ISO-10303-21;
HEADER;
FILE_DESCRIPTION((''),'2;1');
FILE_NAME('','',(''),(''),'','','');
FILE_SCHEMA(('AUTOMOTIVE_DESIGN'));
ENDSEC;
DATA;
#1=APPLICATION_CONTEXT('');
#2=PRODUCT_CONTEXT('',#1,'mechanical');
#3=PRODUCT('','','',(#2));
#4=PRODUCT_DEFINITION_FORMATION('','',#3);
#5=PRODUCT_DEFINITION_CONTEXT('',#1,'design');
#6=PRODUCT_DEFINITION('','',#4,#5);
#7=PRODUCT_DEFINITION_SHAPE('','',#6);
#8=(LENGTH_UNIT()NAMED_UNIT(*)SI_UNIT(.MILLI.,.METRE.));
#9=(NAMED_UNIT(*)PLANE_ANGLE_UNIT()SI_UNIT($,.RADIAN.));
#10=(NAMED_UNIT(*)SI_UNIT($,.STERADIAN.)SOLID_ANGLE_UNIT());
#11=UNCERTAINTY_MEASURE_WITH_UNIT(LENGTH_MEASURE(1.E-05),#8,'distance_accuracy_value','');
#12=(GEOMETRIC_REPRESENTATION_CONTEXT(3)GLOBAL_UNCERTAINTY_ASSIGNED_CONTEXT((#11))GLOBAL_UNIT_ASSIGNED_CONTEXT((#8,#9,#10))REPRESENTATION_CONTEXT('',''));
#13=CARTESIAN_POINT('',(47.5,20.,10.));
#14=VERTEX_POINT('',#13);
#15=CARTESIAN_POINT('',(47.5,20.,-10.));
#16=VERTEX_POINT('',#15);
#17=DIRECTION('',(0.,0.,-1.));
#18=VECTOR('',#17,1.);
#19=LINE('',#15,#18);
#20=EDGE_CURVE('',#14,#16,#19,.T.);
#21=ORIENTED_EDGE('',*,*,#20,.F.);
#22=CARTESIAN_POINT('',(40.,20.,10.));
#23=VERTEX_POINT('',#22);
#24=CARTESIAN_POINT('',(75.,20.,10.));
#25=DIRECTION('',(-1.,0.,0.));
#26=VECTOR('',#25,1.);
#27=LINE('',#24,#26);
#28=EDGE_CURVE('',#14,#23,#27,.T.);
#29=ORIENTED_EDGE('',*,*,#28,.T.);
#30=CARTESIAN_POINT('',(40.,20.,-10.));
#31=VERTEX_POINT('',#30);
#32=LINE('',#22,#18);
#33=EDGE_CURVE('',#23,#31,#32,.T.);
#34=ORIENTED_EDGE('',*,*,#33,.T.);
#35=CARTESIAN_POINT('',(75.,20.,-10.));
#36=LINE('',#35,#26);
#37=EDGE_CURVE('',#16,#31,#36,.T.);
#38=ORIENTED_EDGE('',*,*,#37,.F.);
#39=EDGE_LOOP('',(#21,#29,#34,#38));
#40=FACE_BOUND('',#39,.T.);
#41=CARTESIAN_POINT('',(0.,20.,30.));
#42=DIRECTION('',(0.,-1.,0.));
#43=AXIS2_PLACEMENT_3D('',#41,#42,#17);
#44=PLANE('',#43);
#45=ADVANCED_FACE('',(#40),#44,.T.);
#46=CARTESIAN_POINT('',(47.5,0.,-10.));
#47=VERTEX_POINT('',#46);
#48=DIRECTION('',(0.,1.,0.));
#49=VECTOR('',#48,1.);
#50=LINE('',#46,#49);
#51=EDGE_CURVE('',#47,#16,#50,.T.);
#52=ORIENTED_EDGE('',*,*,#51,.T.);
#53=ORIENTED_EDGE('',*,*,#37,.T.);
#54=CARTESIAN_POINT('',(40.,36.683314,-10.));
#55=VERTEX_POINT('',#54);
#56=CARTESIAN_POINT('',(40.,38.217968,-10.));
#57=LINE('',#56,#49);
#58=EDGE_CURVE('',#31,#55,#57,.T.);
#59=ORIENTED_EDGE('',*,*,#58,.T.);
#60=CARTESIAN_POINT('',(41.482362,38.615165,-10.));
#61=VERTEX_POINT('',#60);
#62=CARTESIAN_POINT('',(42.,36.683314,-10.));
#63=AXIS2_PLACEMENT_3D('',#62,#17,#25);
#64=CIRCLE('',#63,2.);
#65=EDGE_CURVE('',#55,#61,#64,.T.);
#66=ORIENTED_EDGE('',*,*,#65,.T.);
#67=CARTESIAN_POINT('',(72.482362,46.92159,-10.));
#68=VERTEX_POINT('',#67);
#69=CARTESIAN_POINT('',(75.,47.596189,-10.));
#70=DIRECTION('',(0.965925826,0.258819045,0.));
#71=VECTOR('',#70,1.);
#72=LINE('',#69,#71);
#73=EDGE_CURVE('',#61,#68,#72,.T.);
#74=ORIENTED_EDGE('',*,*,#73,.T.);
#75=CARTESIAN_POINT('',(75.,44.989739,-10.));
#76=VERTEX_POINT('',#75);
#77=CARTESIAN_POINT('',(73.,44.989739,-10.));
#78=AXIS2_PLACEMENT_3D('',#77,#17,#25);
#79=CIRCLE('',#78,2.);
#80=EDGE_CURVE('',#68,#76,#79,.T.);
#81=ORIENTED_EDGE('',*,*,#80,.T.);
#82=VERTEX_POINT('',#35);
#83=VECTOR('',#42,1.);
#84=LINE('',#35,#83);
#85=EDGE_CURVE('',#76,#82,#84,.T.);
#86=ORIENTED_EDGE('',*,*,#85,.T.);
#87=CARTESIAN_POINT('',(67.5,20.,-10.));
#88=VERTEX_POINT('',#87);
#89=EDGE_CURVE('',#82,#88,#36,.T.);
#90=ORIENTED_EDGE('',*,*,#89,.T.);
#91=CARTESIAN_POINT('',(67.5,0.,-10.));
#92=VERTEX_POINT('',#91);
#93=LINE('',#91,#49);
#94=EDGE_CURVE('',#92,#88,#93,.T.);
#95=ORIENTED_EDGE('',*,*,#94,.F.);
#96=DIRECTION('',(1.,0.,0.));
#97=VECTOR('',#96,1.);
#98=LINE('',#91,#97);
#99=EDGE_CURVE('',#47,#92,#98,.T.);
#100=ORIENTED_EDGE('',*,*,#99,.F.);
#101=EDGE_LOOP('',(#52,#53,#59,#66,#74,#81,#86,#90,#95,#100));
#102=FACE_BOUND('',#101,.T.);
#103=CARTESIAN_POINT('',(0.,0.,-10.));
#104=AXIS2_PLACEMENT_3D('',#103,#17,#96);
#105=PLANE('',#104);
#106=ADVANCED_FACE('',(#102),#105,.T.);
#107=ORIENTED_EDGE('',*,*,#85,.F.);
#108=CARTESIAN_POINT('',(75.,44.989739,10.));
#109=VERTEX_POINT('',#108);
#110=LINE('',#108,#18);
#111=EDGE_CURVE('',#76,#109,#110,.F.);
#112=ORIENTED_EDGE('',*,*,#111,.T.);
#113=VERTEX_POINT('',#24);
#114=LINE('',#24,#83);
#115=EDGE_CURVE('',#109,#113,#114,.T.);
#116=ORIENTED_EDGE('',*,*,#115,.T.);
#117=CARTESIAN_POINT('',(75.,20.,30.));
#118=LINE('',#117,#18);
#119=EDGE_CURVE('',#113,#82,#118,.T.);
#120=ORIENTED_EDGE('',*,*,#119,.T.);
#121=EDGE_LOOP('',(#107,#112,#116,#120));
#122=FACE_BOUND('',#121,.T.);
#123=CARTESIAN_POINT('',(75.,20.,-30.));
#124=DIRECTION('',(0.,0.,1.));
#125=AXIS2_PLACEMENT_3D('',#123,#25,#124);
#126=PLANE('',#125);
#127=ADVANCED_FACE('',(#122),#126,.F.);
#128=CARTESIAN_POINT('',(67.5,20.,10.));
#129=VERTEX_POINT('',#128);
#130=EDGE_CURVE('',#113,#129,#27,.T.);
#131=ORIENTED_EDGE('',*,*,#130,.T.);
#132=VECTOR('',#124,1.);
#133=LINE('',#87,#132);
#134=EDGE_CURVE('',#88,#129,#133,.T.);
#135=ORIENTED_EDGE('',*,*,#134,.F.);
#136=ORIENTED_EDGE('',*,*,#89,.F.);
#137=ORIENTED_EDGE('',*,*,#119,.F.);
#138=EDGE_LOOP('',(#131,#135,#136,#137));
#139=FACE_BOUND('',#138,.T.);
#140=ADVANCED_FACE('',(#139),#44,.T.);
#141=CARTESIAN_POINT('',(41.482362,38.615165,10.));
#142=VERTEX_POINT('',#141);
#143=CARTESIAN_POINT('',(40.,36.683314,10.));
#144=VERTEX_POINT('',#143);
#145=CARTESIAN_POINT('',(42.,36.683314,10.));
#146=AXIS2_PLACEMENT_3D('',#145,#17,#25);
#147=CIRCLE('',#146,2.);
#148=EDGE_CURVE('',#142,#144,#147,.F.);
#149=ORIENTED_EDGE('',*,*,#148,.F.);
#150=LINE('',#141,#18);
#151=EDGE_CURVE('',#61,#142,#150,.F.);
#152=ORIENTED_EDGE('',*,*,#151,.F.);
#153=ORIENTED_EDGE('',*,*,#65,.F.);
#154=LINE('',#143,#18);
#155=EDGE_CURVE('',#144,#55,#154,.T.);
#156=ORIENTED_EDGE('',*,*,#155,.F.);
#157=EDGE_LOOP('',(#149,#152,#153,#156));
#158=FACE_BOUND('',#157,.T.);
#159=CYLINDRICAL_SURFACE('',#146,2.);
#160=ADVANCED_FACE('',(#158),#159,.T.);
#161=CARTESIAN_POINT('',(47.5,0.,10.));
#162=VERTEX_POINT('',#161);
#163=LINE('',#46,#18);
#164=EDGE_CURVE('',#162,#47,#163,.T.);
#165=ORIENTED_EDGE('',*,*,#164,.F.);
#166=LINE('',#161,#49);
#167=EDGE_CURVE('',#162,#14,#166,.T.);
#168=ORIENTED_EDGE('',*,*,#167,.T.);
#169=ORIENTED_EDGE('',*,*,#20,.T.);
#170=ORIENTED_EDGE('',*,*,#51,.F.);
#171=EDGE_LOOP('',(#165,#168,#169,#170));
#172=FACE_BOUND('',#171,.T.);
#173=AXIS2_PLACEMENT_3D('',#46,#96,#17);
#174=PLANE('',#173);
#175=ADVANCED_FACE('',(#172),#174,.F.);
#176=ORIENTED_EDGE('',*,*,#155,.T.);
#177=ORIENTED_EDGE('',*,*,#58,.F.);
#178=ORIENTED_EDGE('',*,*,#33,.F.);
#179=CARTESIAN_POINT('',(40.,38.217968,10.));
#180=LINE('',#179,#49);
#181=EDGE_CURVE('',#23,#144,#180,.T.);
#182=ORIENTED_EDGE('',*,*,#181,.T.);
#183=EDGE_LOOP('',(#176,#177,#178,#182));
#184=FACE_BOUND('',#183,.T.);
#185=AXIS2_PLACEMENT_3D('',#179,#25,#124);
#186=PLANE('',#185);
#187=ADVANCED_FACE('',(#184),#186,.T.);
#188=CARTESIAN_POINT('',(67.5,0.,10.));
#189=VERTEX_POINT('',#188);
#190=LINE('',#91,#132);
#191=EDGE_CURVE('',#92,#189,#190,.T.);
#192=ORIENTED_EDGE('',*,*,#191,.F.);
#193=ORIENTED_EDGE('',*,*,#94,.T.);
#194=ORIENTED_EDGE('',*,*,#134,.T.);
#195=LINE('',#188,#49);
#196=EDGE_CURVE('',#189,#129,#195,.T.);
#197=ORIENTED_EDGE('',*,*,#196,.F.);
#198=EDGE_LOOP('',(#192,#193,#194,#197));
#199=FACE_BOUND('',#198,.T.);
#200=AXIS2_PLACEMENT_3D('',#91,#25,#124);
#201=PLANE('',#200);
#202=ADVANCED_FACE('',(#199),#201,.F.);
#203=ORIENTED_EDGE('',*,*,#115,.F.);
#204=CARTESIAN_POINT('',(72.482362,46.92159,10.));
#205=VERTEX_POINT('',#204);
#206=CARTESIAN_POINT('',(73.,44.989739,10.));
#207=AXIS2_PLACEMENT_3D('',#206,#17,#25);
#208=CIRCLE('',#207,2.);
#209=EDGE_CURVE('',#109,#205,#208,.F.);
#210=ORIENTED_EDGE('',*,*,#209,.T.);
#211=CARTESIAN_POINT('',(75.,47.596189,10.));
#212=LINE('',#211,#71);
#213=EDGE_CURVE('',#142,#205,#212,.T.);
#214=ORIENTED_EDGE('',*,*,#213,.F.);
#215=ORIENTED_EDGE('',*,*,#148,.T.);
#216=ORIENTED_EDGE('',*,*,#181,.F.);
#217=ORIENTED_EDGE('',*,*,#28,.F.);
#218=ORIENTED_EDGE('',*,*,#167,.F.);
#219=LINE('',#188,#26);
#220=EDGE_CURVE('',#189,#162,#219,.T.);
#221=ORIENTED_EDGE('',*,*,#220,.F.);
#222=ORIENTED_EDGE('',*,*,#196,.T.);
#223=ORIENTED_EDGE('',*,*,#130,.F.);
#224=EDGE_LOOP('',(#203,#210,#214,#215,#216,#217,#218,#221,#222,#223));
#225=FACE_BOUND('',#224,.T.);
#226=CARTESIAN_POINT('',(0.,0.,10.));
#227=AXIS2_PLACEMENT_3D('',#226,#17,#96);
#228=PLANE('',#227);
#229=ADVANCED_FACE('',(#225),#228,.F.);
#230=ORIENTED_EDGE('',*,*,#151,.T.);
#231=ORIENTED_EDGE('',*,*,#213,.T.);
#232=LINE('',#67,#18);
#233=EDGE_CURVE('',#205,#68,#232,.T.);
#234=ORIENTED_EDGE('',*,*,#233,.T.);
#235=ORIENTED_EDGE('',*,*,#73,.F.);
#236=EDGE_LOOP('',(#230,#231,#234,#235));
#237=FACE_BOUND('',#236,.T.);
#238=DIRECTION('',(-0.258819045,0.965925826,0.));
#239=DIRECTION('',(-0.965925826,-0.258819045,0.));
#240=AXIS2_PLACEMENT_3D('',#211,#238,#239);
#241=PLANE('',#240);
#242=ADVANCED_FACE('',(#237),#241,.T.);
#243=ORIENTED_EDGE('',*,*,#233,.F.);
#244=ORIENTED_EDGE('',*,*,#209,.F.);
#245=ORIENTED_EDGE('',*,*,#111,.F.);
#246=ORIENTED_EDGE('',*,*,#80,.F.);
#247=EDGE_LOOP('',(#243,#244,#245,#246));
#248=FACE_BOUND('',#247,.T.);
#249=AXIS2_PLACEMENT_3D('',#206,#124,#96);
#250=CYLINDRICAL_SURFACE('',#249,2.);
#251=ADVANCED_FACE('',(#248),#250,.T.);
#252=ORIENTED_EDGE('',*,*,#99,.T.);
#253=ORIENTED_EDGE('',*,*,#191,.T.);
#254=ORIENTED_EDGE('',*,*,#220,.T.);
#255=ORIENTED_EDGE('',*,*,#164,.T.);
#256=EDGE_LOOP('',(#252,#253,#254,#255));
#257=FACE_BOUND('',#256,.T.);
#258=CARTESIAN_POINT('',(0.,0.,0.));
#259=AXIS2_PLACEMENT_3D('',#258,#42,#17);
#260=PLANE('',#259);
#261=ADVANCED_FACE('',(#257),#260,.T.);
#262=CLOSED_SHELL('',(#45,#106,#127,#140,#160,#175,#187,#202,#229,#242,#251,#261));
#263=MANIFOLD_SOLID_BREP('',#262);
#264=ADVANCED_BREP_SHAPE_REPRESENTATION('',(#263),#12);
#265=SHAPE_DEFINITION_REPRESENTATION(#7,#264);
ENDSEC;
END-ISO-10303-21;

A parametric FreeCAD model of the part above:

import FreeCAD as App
import Part
import Sketcher
from FreeCAD import Vector
Q = App.Units.Quantity


def edges_at(feature, points):
    """Names of the edges that pass closest to the given points."""
    edges = feature.Shape.Edges
    near = lambda p: min(range(len(edges)), key=lambda i: edges[i].distToShape(Part.Vertex(*p))[0])
    return sorted({f"Edge{near(p) + 1}" for p in points})


def add_polygon(sketch, points):
    """Adds a closed chain of lines whose ends are joined by coincident constraints."""
    first, n = sketch.GeometryCount, len(points)
    for a, b in zip(points, points[1:] + points[:1]):
        sketch.addGeometry(Part.LineSegment(App.Vector(*a, 0), App.Vector(*b, 0)), False)
    for i in range(n):
        sketch.addConstraint(Sketcher.Constraint("Coincident", first + i, 2, first + (i + 1) % n, 1))

doc = App.newDocument("Part")
body = doc.addObject("PartDesign::Body", "Body")

sketch1 = body.newObject("Sketcher::SketchObject", "Sketch")
sketch1.AttachmentSupport = (doc.getObject("XZ_Plane"), [""])
sketch1.MapMode = "FlatFace"
add_polygon(sketch1, [(-75, -30), (-75, 30), (75, 30), (75, -30)])
sketch1.addConstraint([
    Sketcher.Constraint("Vertical", 0),
    Sketcher.Constraint("Horizontal", 1),
    Sketcher.Constraint("Vertical", 2),
    Sketcher.Constraint("Horizontal", 3),
    Sketcher.Constraint("Symmetric", 0, 2, 2, 2, -1, 1),
    Sketcher.Constraint("DistanceX", 1, 1, 1, 2, Q("150 mm")),
    Sketcher.Constraint("DistanceY", 0, 1, 0, 2, Q("60 mm")),
])
pad1 = body.newObject("PartDesign::Pad", "Pad")
pad1.Profile = sketch1
pad1.Length = 20
pad1.Reversed = True

sketch2 = body.newObject("Sketcher::SketchObject", "Sketch001")
sketch2.AttachmentSupport = (doc.getObject("XZ_Plane"), [""])
sketch2.MapMode = "FlatFace"
sketch2.AttachmentOffset = App.Placement(Vector(0, 0, -20), App.Rotation())
add_polygon(sketch2, [(-10.2, -23.1), (-10.2, -2.7), (10.2, -2.7), (10.2, -23.1)])
add_polygon(sketch2, [(-10.2, 2.7), (-10.2, 23.1), (10.2, 23.1), (10.2, 2.7)])
sketch2.addConstraint([
    Sketcher.Constraint("Vertical", 0),
    Sketcher.Constraint("Horizontal", 1),
    Sketcher.Constraint("Vertical", 2),
    Sketcher.Constraint("Horizontal", 3),
    Sketcher.Constraint("Vertical", 4),
    Sketcher.Constraint("Horizontal", 5),
    Sketcher.Constraint("Vertical", 6),
    Sketcher.Constraint("Horizontal", 7),
    Sketcher.Constraint("Symmetric", 2, 2, 4, 2, -1, 1),
    Sketcher.Constraint("Symmetric", 0, 2, 6, 2, -1, 1),
    Sketcher.Constraint("Vertical", 3, 2, 4, 2),
    Sketcher.Constraint("Equal", 7, 0),
    Sketcher.Constraint("DistanceX", 1, 1, 1, 2, Q("20.4 mm")),
    Sketcher.Constraint("DistanceY", 0, 2, -1, 1, Q("2.7 mm")),
])
pocket1 = body.newObject("PartDesign::Pocket", "Pocket")
pocket1.Profile = sketch2
pocket1.Length = 20
pocket1.Reversed = True

sketch3 = body.newObject("Sketcher::SketchObject", "Sketch002")
sketch3.AttachmentSupport = (doc.getObject("XY_Plane"), [""])
sketch3.MapMode = "FlatFace"
add_polygon(sketch3, [(-75, 47.596189), (-75, 20), (-40, 20), (-40, 38.217968)])
sketch3.addConstraint([
    Sketcher.Constraint("Vertical", 0),
    Sketcher.Constraint("Horizontal", 1),
    Sketcher.Constraint("Vertical", 2),
    Sketcher.Constraint("DistanceX", 1, 1, 1, 2, Q("35 mm")),
    Sketcher.Constraint("Angle", 3, Q("165 deg")),
    Sketcher.Constraint("DistanceX", 0, 2, -1, 1, Q("75 mm")),
    Sketcher.Constraint("DistanceY", -1, 1, 0, 2, Q("20 mm")),
    Sketcher.Constraint("DistanceY", 0, 2, 0, 1, Q("27.596189 mm")),
])
pad2 = body.newObject("PartDesign::Pad", "Pad001")
pad2.Profile = sketch3
pad2.Length = 20
pad2.Midplane = True
doc.recompute()

mirrored = body.newObject("PartDesign::Mirrored", "Mirrored")
mirrored.Originals = [pad2]
mirrored.MirrorPlane = (doc.getObject("YZ_Plane"), [""])
body.Tip = mirrored

sketch4 = body.newObject("Sketcher::SketchObject", "Sketch003")
sketch4.AttachmentSupport = (doc.getObject("XY_Plane"), [""])
sketch4.MapMode = "FlatFace"
sketch4.AttachmentOffset = App.Placement(Vector(0, 0, -10), App.Rotation())
add_polygon(sketch4, [(75, 20), (75, 0), (-75, 0), (-75, 47.596189), (0, 47.596189), (0, 20)])
sketch4.addConstraint([
    Sketcher.Constraint("Vertical", 0),
    Sketcher.Constraint("Horizontal", 1),
    Sketcher.Constraint("Vertical", 2),
    Sketcher.Constraint("Horizontal", 3),
    Sketcher.Constraint("Vertical", 4),
    Sketcher.Constraint("Horizontal", 5),
    Sketcher.Constraint("Symmetric", 0, 2, 1, 2, -1, 1),
    Sketcher.Constraint("PointOnObject", 3, 2, -2),
    Sketcher.Constraint("DistanceX", 1, 2, 1, 1, Q("150 mm")),
    Sketcher.Constraint("DistanceY", 0, 2, 0, 1, Q("20 mm")),
    Sketcher.Constraint("DistanceY", 2, 1, 2, 2, Q("47.596189 mm")),
])
pocket2 = body.newObject("PartDesign::Pocket", "Pocket001")
pocket2.Profile = sketch4
pocket2.Type = "ThroughAll"
pocket2.Midplane = True

sketch5 = body.newObject("Sketcher::SketchObject", "Sketch004")
sketch5.AttachmentSupport = (doc.getObject("XZ_Plane"), [""])
sketch5.MapMode = "FlatFace"
sketch5.AttachmentOffset = App.Placement(Vector(0, 0, -20), App.Rotation())
add_polygon(sketch5, [(47.5, 10), (47.5, -10), (67.5, -10), (67.5, 10)])
sketch5.addConstraint([
    Sketcher.Constraint("Vertical", 0),
    Sketcher.Constraint("Horizontal", 1),
    Sketcher.Constraint("Vertical", 2),
    Sketcher.Constraint("Horizontal", 3),
    Sketcher.Constraint("Equal", 3, 0),
    Sketcher.Constraint("DistanceX", 1, 1, 1, 2, Q("20 mm")),
    Sketcher.Constraint("DistanceY", 0, 2, -1, 1, Q("10 mm")),
    Sketcher.Constraint("DistanceX", -1, 1, 0, 2, Q("47.5 mm")),
])
pad3 = body.newObject("PartDesign::Pad", "Pad002")
pad3.Profile = sketch5
pad3.Length = 20
doc.recompute()

fillet = body.newObject("PartDesign::Fillet", "Fillet")
fillet.Base = (pad3, edges_at(pad3, [(75, 47.596, 0), (40, 38.218, 0)]))
fillet.Radius = 2

doc.recompute()
